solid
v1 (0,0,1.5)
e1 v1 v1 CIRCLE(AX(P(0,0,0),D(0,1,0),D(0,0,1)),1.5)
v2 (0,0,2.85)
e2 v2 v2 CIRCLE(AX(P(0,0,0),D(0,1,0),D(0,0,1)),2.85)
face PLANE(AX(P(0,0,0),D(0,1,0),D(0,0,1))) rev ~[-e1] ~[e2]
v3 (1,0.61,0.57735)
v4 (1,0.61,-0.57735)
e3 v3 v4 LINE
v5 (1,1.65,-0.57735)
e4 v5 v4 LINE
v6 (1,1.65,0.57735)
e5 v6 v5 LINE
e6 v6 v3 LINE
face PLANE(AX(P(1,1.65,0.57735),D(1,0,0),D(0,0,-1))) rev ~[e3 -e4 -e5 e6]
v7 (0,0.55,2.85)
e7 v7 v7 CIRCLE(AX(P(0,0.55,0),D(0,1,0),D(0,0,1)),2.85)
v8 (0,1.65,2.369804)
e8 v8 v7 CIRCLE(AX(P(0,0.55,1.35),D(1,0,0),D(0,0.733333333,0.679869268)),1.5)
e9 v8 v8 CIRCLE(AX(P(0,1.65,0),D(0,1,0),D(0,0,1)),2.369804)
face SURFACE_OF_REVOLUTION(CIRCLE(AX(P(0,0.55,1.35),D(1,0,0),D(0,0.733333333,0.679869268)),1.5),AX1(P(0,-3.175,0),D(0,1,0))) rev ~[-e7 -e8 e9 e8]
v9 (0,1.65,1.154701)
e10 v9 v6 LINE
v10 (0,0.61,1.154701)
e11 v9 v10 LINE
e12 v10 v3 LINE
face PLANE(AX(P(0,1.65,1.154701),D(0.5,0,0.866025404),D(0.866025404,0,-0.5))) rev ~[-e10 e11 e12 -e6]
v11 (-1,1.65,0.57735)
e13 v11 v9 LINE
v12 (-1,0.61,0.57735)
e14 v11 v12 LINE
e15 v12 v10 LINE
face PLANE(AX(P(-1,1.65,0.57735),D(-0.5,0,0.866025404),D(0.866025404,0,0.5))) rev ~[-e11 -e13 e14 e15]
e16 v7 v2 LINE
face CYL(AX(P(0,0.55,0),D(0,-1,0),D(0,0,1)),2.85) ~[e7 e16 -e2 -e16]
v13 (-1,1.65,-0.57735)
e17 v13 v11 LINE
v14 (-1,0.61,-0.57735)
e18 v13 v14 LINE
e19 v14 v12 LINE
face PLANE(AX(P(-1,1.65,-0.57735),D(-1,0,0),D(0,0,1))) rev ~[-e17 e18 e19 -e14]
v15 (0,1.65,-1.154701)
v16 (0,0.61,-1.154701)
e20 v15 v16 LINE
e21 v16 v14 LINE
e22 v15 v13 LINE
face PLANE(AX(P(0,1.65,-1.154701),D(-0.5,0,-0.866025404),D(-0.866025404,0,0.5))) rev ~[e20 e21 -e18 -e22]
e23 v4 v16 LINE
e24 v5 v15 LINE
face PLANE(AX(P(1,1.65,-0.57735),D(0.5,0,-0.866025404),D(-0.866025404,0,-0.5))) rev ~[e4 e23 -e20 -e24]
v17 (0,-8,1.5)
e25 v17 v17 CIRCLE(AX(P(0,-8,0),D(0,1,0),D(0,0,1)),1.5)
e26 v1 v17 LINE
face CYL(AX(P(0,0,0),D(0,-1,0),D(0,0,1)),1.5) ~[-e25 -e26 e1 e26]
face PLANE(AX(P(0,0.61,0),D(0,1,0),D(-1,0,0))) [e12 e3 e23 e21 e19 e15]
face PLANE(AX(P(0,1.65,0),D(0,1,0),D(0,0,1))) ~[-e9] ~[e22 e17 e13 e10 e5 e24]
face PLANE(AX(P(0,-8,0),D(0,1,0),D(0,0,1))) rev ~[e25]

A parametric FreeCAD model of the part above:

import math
import FreeCAD as App
import Part
import Sketcher
from FreeCAD import Vector
Q = App.Units.Quantity

doc = App.newDocument("Part")
body = doc.addObject("PartDesign::Body", "Body")

# Sketch on YZ plane
sketch1 = doc.addObject("Sketcher::SketchObject", "Sketch")
body.addObject(sketch1)
sketch1.AttachmentSupport = (doc.YZ_Plane, [""])
sketch1.MapMode = "FlatFace"
sketch1.addGeometry([
    Part.LineSegment(Vector(-8, 0, 0), Vector(1.6, 0, 0)),  # 0
    Part.LineSegment(Vector(1.6, 0, 0), Vector(1.6, 2.4, 0)),  # 1
    Part.ArcOfCircle(Part.Circle(Vector(0.6, 1.4, 0), Vector(0, 0, 1), 1.5), math.radians(43), math.radians(90)),  # 2
    Part.LineSegment(Vector(0.6, 2.9, 0), Vector(0, 2.9, 0)),  # 3
    Part.LineSegment(Vector(0, 2.9, 0), Vector(0, 1.5, 0)),  # 4
    Part.LineSegment(Vector(0, 1.5, 0), Vector(-8, 1.5, 0)),  # 5
    Part.LineSegment(Vector(-8, 1.5, 0), Vector(-8, 0, 0)),  # 6
], False)
sketch1.addConstraint([
    Sketcher.Constraint("Coincident", 0, 2, 1, 1),
    Sketcher.Constraint("Coincident", 1, 2, 2, 1),
    Sketcher.Constraint("Tangent", 2, 2, 3, 1),
    Sketcher.Constraint("Coincident", 3, 2, 4, 1),
    Sketcher.Constraint("Coincident", 4, 2, 5, 1),
    Sketcher.Constraint("Coincident", 5, 2, 6, 1),
    Sketcher.Constraint("Coincident", 6, 2, 0, 1),
    Sketcher.Constraint("Horizontal", 0),
    Sketcher.Constraint("Vertical", 1),
    Sketcher.Constraint("Horizontal", 3),
    Sketcher.Constraint("Vertical", 4),
    Sketcher.Constraint("Horizontal", 5),
    Sketcher.Constraint("Vertical", 6),
    Sketcher.Constraint("PointOnObject", 0, 2, -1),
    Sketcher.Constraint("PointOnObject", 3, 2, -2),
    Sketcher.Constraint("Radius", 2, Q("1.5 mm")),
    Sketcher.Constraint("DistanceX", 5, 2, 5, 1, Q("8 mm")),
    Sketcher.Constraint("DistanceY", 6, 2, 6, 1, Q("1.5 mm")),
    Sketcher.Constraint("DistanceX", 0, 1, 0, 2, Q("9.65 mm")),
    Sketcher.Constraint("DistanceX", 3, 2, 3, 1, Q("0.55 mm")),
    Sketcher.Constraint("DistanceY", 4, 2, 4, 1, Q("1.35 mm")),
])
revolution = doc.addObject("PartDesign::Revolution", "Revolution")
body.addObject(revolution)
revolution.Profile = sketch1
revolution.ReferenceAxis = (sketch1, ["H_Axis"])
revolution.Angle = 360

# Sketch on XZ plane
sketch2 = doc.addObject("Sketcher::SketchObject", "Sketch001")
body.addObject(sketch2)
sketch2.AttachmentSupport = (doc.XZ_Plane, [""])
sketch2.MapMode = "FlatFace"
sketch2.AttachmentOffset = App.Placement(Vector(0, 0, -1.65), App.Rotation())
sketch2.addGeometry([
    Part.LineSegment(Vector(1, 0.6, 0), Vector(1, -0.6, 0)),  # 0
    Part.LineSegment(Vector(1, -0.6, 0), Vector(0, -1.2, 0)),  # 1
    Part.LineSegment(Vector(0, -1.2, 0), Vector(-1, -0.6, 0)),  # 2
    Part.LineSegment(Vector(-1, -0.6, 0), Vector(-1, 0.6, 0)),  # 3
    Part.LineSegment(Vector(-1, 0.6, 0), Vector(0, 1.2, 0)),  # 4
    Part.LineSegment(Vector(0, 1.2, 0), Vector(1, 0.6, 0)),  # 5
], False)
sketch2.addConstraint([
    Sketcher.Constraint("Coincident", 0, 2, 1, 1),
    Sketcher.Constraint("Coincident", 1, 2, 2, 1),
    Sketcher.Constraint("Coincident", 2, 2, 3, 1),
    Sketcher.Constraint("Coincident", 3, 2, 4, 1),
    Sketcher.Constraint("Coincident", 4, 2, 5, 1),
    Sketcher.Constraint("Coincident", 5, 2, 0, 1),
    Sketcher.Constraint("Vertical", 0),
    Sketcher.Constraint("Vertical", 3),
    Sketcher.Constraint("Symmetric", 0, 2, 3, 2, -1, 1),
    Sketcher.Constraint("Symmetric", 1, 2, 4, 2, -1, 1),
    Sketcher.Constraint("PointOnObject", 1, 2, -2),
    Sketcher.Constraint("Parallel", 2, 5),
    Sketcher.Constraint("Horizontal", 0, 2, 2, 2),
    Sketcher.Constraint("Angle", 1, Q("-150 deg")),
    Sketcher.Constraint("DistanceX", -1, 1, 0, 2, Q("1 mm")),
    Sketcher.Constraint("DistanceY", 0, 2, 0, 1, Q("1.154701 mm")),
])
pocket1 = doc.addObject("PartDesign::Pocket", "Pocket")
body.addObject(pocket1)
pocket1.Profile = sketch2
pocket1.Length = 1.04
pocket1.Reversed = True

doc.recompute()
